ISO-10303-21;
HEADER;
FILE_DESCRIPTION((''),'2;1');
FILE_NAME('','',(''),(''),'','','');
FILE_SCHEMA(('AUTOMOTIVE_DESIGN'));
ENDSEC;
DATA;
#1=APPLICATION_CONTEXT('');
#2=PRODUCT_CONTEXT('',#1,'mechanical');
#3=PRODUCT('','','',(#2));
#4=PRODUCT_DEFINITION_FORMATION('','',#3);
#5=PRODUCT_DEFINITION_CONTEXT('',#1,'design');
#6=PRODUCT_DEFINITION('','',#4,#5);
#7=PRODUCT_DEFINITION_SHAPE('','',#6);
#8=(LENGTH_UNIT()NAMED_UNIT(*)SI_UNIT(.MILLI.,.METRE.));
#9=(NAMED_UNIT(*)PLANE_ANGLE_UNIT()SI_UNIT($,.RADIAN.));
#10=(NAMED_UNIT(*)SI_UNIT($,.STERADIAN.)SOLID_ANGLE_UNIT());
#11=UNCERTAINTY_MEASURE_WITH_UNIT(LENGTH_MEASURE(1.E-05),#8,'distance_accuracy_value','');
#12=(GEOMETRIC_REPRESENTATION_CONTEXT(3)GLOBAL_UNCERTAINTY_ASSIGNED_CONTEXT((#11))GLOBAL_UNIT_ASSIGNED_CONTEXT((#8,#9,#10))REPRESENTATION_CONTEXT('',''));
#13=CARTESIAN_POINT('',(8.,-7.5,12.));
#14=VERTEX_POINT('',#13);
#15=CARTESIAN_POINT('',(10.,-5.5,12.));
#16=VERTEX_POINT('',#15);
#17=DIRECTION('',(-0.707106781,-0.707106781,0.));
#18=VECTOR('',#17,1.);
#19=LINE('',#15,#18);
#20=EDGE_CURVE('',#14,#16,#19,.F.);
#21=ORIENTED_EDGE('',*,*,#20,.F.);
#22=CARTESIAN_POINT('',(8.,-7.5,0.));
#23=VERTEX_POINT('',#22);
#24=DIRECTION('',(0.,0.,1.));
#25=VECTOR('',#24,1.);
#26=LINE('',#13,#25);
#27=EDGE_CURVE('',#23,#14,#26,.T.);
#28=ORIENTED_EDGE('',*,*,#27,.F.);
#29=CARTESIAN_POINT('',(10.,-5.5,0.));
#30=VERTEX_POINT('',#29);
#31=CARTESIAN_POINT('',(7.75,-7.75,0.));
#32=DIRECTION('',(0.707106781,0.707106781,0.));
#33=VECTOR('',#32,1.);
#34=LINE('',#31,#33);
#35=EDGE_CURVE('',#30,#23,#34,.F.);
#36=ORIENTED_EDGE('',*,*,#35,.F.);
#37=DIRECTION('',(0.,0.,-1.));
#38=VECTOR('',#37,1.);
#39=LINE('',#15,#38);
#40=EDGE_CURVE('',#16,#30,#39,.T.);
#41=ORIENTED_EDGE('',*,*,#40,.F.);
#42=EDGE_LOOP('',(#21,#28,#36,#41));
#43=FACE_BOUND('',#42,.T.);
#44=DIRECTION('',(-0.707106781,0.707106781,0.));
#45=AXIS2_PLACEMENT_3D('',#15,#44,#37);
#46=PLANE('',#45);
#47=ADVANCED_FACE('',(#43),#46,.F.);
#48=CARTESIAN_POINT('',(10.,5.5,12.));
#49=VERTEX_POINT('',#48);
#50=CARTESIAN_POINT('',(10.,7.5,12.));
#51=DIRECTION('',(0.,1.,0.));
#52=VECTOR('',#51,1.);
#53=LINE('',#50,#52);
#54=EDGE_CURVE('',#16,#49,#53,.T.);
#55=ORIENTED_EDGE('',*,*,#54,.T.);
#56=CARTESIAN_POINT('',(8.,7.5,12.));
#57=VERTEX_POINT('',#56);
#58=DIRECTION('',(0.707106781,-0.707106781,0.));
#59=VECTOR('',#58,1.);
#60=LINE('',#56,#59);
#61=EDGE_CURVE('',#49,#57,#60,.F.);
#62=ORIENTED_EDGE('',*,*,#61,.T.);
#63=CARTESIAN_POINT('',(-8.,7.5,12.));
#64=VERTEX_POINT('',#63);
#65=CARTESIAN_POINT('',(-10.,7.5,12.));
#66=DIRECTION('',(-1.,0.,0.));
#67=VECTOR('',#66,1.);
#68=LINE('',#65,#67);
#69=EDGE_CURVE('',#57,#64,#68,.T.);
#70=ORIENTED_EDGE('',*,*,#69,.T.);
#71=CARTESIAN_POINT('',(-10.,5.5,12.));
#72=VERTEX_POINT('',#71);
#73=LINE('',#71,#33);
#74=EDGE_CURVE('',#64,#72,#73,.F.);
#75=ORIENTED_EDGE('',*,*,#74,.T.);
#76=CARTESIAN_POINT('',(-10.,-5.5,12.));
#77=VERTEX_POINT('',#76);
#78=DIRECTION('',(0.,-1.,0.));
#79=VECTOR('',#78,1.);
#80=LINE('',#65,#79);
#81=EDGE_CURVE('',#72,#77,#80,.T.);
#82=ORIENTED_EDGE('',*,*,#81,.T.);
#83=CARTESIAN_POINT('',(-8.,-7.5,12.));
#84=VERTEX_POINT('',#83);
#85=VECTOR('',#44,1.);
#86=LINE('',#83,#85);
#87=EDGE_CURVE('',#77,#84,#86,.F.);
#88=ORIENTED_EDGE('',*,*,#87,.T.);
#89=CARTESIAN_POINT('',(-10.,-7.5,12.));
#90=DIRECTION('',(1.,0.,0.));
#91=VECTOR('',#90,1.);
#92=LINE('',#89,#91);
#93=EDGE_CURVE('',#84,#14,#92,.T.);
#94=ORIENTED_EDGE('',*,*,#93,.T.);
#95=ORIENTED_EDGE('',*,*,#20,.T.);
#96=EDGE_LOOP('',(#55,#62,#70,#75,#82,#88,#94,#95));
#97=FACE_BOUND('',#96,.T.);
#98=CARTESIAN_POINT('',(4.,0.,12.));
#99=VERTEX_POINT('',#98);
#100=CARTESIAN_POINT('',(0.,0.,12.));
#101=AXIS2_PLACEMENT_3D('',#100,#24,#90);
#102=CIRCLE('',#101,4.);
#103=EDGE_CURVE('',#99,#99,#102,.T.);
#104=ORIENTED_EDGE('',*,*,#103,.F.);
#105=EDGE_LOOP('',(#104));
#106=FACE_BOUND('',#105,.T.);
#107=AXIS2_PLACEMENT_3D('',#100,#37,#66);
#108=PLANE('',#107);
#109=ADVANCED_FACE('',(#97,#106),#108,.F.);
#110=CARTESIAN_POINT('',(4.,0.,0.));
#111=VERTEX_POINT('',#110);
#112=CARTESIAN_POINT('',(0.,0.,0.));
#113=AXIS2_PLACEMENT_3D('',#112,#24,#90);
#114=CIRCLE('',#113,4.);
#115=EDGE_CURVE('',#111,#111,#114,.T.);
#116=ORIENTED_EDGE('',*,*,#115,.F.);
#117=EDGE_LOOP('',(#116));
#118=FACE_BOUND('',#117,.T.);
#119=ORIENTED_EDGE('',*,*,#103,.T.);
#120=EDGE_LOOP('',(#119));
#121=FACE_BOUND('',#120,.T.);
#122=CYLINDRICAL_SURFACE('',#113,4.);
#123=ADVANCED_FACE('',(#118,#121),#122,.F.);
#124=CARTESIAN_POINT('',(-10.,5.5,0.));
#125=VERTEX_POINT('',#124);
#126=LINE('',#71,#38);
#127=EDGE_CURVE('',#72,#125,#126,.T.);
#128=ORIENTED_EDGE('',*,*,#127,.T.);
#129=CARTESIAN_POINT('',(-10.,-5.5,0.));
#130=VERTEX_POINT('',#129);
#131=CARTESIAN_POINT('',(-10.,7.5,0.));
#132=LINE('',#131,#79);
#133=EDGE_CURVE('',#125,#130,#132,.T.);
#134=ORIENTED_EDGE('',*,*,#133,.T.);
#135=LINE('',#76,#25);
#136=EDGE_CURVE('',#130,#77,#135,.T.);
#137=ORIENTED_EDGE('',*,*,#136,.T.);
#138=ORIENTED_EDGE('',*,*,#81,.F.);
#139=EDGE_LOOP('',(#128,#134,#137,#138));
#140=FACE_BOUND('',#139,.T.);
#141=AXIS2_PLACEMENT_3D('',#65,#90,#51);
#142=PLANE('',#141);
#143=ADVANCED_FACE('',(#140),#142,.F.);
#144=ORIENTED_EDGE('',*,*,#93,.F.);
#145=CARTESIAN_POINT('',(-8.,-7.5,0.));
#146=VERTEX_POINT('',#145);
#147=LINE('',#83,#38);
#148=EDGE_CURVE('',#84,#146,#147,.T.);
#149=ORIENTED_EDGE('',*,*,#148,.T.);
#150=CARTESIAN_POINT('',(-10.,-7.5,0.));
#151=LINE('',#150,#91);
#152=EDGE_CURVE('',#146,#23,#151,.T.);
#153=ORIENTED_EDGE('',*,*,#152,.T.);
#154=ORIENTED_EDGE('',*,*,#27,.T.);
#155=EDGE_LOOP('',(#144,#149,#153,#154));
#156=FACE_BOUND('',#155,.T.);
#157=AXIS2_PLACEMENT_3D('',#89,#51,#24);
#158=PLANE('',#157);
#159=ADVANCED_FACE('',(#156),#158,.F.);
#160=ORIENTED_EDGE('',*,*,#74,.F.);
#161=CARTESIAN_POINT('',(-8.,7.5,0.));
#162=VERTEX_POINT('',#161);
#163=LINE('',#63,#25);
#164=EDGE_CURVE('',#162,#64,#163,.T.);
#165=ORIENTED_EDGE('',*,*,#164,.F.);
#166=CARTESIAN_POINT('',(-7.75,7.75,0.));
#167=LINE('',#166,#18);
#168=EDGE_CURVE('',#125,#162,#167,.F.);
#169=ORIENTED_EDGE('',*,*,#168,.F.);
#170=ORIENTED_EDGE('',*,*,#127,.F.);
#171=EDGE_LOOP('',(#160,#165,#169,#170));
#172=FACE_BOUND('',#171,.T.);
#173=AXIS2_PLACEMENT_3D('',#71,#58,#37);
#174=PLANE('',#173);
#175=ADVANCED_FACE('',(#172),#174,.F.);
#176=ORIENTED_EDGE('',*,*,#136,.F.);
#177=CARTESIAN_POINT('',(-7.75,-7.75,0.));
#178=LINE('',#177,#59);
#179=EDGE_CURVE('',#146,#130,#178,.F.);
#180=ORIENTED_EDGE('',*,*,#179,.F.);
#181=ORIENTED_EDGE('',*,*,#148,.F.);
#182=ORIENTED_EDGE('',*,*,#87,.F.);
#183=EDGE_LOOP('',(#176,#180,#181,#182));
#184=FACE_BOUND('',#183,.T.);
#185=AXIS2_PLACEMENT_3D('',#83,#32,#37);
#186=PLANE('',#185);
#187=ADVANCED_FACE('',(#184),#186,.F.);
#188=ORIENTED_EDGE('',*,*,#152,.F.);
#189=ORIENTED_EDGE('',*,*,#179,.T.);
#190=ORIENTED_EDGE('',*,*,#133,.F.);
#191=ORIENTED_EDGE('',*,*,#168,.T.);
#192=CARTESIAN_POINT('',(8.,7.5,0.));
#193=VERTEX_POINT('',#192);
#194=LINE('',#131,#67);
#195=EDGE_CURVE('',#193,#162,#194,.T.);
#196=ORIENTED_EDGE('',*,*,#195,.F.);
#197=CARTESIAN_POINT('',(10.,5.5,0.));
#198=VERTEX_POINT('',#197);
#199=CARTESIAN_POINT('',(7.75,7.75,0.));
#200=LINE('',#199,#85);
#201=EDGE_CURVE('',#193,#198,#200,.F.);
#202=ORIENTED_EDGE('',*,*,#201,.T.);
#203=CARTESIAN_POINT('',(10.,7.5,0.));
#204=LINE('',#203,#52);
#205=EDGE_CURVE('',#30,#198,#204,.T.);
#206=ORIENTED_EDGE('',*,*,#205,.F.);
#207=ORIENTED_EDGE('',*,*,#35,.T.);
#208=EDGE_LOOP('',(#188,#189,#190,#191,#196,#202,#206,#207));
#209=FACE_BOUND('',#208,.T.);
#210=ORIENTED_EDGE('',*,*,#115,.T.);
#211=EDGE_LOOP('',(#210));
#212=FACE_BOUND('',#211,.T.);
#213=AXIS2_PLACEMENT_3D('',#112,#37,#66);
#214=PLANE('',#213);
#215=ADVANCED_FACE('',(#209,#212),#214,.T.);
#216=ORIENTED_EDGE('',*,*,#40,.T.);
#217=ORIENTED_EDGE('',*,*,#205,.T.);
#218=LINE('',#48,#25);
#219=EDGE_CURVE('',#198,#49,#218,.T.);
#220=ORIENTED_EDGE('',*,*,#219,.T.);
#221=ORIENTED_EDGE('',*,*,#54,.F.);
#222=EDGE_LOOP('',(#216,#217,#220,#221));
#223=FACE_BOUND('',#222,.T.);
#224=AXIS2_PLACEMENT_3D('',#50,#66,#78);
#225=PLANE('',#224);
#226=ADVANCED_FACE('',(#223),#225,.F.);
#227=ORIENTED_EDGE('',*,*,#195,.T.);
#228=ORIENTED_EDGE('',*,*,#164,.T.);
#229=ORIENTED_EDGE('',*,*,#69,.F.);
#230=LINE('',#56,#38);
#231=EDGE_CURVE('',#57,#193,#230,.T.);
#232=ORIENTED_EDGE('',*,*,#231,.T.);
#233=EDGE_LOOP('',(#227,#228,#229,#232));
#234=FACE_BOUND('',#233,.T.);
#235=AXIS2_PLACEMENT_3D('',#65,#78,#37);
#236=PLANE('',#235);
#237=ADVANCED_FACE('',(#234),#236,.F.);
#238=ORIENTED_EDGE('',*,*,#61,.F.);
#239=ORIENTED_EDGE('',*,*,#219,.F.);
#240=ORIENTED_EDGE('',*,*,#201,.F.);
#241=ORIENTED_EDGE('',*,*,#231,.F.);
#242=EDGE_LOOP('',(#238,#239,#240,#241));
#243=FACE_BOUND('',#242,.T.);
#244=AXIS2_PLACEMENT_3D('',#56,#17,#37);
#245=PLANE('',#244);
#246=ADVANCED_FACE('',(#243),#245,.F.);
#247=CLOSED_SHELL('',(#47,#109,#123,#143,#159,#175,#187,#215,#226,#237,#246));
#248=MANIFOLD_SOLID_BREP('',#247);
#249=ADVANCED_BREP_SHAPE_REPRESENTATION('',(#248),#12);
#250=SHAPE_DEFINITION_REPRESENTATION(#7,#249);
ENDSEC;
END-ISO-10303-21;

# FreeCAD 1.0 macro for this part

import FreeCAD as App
import Part
import Sketcher

V = App.Vector


def edges_at(feature, points):
    """Names of the edges that pass closest to the given points."""
    edges = feature.Shape.Edges
    near = lambda p: min(range(len(edges)), key=lambda i: edges[i].distToShape(Part.Vertex(*p))[0])
    return sorted({f"Edge{near(p) + 1}" for p in points})


def add_polygon(sketch, points):
    """Adds a closed chain of lines whose ends are joined by coincident constraints."""
    first, n = sketch.GeometryCount, len(points)
    for a, b in zip(points, points[1:] + points[:1]):
        sketch.addGeometry(Part.LineSegment(App.Vector(*a, 0), App.Vector(*b, 0)), False)
    for i in range(n):
        sketch.addConstraint(Sketcher.Constraint("Coincident", first + i, 2, first + (i + 1) % n, 1))

doc = App.newDocument("Part")
params = doc.addObject("Spreadsheet::Sheet", "Params")
for row, (alias, value) in enumerate([
    ("sketch1_width", "20 mm"),
    ("sketch1_height", "15 mm"),
    ("pad1_length", "12 mm"),
    ("sketch2_diameter", "8 mm"),
    ("chamfer_size", "2 mm"),
], start=1):
    params.set(f"A{row}", alias)
    params.set(f"B{row}", "=" + value)
    params.setAlias(f"B{row}", alias)

body = doc.addObject("PartDesign::Body", "Body")

sketch1 = doc.addObject("Sketcher::SketchObject", "Sketch")
body.addObject(sketch1)
sketch1.AttachmentSupport = (doc.XY_Plane, [""])
sketch1.MapMode = "FlatFace"
add_polygon(sketch1, [(-10, 7.5), (-10, -7.5), (10, -7.5), (10, 7.5)])
sketch1.addConstraint([
    Sketcher.Constraint("Vertical", 0),
    Sketcher.Constraint("Horizontal", 1),
    Sketcher.Constraint("Vertical", 2),
    Sketcher.Constraint("Horizontal", 3),
    Sketcher.Constraint("Symmetric", 0, 2, 2, 2, -1, 1),
    Sketcher.Constraint("DistanceX", 1, 1, 1, 2, 20.0),
    Sketcher.Constraint("DistanceY", 0, 2, 0, 1, 15.0),
])
sketch1.setExpression("Constraints[9]", "Params.sketch1_width")
sketch1.setExpression("Constraints[10]", "Params.sketch1_height")
pad1 = doc.addObject("PartDesign::Pad", "Pad")
body.addObject(pad1)
pad1.Profile = sketch1
pad1.setExpression("Length", "Params.pad1_length")

sketch2 = doc.addObject("Sketcher::SketchObject", "Sketch001")
body.addObject(sketch2)
sketch2.AttachmentSupport = (doc.XY_Plane, [""])
sketch2.MapMode = "FlatFace"
sketch2.AttachmentOffset = App.Placement(V(0, 0, 12), App.Rotation())
sketch2.addGeometry(Part.Circle(V(0, 0, 0), V(0, 0, 1), 4), False)
sketch2.addConstraint([
    Sketcher.Constraint("Coincident", 0, 3, -1, 1),
    Sketcher.Constraint("Diameter", 0, 8.0),
])
sketch2.setExpression("Constraints[1]", "Params.sketch2_diameter")
pocket1 = doc.addObject("PartDesign::Pocket", "Pocket")
body.addObject(pocket1)
pocket1.Profile = sketch2
pocket1.Type = "ThroughAll"
doc.recompute()

chamfer = doc.addObject("PartDesign::Chamfer", "Chamfer")
body.addObject(chamfer)
chamfer.Base = (pocket1, edges_at(pocket1, [
    (10, 7.5, 6),
    (10, -7.5, 6),
    (-10, -7.5, 6),
    (-10, 7.5, 6),
]))
chamfer.setExpression("Size", "Params.chamfer_size")

doc.recompute()
